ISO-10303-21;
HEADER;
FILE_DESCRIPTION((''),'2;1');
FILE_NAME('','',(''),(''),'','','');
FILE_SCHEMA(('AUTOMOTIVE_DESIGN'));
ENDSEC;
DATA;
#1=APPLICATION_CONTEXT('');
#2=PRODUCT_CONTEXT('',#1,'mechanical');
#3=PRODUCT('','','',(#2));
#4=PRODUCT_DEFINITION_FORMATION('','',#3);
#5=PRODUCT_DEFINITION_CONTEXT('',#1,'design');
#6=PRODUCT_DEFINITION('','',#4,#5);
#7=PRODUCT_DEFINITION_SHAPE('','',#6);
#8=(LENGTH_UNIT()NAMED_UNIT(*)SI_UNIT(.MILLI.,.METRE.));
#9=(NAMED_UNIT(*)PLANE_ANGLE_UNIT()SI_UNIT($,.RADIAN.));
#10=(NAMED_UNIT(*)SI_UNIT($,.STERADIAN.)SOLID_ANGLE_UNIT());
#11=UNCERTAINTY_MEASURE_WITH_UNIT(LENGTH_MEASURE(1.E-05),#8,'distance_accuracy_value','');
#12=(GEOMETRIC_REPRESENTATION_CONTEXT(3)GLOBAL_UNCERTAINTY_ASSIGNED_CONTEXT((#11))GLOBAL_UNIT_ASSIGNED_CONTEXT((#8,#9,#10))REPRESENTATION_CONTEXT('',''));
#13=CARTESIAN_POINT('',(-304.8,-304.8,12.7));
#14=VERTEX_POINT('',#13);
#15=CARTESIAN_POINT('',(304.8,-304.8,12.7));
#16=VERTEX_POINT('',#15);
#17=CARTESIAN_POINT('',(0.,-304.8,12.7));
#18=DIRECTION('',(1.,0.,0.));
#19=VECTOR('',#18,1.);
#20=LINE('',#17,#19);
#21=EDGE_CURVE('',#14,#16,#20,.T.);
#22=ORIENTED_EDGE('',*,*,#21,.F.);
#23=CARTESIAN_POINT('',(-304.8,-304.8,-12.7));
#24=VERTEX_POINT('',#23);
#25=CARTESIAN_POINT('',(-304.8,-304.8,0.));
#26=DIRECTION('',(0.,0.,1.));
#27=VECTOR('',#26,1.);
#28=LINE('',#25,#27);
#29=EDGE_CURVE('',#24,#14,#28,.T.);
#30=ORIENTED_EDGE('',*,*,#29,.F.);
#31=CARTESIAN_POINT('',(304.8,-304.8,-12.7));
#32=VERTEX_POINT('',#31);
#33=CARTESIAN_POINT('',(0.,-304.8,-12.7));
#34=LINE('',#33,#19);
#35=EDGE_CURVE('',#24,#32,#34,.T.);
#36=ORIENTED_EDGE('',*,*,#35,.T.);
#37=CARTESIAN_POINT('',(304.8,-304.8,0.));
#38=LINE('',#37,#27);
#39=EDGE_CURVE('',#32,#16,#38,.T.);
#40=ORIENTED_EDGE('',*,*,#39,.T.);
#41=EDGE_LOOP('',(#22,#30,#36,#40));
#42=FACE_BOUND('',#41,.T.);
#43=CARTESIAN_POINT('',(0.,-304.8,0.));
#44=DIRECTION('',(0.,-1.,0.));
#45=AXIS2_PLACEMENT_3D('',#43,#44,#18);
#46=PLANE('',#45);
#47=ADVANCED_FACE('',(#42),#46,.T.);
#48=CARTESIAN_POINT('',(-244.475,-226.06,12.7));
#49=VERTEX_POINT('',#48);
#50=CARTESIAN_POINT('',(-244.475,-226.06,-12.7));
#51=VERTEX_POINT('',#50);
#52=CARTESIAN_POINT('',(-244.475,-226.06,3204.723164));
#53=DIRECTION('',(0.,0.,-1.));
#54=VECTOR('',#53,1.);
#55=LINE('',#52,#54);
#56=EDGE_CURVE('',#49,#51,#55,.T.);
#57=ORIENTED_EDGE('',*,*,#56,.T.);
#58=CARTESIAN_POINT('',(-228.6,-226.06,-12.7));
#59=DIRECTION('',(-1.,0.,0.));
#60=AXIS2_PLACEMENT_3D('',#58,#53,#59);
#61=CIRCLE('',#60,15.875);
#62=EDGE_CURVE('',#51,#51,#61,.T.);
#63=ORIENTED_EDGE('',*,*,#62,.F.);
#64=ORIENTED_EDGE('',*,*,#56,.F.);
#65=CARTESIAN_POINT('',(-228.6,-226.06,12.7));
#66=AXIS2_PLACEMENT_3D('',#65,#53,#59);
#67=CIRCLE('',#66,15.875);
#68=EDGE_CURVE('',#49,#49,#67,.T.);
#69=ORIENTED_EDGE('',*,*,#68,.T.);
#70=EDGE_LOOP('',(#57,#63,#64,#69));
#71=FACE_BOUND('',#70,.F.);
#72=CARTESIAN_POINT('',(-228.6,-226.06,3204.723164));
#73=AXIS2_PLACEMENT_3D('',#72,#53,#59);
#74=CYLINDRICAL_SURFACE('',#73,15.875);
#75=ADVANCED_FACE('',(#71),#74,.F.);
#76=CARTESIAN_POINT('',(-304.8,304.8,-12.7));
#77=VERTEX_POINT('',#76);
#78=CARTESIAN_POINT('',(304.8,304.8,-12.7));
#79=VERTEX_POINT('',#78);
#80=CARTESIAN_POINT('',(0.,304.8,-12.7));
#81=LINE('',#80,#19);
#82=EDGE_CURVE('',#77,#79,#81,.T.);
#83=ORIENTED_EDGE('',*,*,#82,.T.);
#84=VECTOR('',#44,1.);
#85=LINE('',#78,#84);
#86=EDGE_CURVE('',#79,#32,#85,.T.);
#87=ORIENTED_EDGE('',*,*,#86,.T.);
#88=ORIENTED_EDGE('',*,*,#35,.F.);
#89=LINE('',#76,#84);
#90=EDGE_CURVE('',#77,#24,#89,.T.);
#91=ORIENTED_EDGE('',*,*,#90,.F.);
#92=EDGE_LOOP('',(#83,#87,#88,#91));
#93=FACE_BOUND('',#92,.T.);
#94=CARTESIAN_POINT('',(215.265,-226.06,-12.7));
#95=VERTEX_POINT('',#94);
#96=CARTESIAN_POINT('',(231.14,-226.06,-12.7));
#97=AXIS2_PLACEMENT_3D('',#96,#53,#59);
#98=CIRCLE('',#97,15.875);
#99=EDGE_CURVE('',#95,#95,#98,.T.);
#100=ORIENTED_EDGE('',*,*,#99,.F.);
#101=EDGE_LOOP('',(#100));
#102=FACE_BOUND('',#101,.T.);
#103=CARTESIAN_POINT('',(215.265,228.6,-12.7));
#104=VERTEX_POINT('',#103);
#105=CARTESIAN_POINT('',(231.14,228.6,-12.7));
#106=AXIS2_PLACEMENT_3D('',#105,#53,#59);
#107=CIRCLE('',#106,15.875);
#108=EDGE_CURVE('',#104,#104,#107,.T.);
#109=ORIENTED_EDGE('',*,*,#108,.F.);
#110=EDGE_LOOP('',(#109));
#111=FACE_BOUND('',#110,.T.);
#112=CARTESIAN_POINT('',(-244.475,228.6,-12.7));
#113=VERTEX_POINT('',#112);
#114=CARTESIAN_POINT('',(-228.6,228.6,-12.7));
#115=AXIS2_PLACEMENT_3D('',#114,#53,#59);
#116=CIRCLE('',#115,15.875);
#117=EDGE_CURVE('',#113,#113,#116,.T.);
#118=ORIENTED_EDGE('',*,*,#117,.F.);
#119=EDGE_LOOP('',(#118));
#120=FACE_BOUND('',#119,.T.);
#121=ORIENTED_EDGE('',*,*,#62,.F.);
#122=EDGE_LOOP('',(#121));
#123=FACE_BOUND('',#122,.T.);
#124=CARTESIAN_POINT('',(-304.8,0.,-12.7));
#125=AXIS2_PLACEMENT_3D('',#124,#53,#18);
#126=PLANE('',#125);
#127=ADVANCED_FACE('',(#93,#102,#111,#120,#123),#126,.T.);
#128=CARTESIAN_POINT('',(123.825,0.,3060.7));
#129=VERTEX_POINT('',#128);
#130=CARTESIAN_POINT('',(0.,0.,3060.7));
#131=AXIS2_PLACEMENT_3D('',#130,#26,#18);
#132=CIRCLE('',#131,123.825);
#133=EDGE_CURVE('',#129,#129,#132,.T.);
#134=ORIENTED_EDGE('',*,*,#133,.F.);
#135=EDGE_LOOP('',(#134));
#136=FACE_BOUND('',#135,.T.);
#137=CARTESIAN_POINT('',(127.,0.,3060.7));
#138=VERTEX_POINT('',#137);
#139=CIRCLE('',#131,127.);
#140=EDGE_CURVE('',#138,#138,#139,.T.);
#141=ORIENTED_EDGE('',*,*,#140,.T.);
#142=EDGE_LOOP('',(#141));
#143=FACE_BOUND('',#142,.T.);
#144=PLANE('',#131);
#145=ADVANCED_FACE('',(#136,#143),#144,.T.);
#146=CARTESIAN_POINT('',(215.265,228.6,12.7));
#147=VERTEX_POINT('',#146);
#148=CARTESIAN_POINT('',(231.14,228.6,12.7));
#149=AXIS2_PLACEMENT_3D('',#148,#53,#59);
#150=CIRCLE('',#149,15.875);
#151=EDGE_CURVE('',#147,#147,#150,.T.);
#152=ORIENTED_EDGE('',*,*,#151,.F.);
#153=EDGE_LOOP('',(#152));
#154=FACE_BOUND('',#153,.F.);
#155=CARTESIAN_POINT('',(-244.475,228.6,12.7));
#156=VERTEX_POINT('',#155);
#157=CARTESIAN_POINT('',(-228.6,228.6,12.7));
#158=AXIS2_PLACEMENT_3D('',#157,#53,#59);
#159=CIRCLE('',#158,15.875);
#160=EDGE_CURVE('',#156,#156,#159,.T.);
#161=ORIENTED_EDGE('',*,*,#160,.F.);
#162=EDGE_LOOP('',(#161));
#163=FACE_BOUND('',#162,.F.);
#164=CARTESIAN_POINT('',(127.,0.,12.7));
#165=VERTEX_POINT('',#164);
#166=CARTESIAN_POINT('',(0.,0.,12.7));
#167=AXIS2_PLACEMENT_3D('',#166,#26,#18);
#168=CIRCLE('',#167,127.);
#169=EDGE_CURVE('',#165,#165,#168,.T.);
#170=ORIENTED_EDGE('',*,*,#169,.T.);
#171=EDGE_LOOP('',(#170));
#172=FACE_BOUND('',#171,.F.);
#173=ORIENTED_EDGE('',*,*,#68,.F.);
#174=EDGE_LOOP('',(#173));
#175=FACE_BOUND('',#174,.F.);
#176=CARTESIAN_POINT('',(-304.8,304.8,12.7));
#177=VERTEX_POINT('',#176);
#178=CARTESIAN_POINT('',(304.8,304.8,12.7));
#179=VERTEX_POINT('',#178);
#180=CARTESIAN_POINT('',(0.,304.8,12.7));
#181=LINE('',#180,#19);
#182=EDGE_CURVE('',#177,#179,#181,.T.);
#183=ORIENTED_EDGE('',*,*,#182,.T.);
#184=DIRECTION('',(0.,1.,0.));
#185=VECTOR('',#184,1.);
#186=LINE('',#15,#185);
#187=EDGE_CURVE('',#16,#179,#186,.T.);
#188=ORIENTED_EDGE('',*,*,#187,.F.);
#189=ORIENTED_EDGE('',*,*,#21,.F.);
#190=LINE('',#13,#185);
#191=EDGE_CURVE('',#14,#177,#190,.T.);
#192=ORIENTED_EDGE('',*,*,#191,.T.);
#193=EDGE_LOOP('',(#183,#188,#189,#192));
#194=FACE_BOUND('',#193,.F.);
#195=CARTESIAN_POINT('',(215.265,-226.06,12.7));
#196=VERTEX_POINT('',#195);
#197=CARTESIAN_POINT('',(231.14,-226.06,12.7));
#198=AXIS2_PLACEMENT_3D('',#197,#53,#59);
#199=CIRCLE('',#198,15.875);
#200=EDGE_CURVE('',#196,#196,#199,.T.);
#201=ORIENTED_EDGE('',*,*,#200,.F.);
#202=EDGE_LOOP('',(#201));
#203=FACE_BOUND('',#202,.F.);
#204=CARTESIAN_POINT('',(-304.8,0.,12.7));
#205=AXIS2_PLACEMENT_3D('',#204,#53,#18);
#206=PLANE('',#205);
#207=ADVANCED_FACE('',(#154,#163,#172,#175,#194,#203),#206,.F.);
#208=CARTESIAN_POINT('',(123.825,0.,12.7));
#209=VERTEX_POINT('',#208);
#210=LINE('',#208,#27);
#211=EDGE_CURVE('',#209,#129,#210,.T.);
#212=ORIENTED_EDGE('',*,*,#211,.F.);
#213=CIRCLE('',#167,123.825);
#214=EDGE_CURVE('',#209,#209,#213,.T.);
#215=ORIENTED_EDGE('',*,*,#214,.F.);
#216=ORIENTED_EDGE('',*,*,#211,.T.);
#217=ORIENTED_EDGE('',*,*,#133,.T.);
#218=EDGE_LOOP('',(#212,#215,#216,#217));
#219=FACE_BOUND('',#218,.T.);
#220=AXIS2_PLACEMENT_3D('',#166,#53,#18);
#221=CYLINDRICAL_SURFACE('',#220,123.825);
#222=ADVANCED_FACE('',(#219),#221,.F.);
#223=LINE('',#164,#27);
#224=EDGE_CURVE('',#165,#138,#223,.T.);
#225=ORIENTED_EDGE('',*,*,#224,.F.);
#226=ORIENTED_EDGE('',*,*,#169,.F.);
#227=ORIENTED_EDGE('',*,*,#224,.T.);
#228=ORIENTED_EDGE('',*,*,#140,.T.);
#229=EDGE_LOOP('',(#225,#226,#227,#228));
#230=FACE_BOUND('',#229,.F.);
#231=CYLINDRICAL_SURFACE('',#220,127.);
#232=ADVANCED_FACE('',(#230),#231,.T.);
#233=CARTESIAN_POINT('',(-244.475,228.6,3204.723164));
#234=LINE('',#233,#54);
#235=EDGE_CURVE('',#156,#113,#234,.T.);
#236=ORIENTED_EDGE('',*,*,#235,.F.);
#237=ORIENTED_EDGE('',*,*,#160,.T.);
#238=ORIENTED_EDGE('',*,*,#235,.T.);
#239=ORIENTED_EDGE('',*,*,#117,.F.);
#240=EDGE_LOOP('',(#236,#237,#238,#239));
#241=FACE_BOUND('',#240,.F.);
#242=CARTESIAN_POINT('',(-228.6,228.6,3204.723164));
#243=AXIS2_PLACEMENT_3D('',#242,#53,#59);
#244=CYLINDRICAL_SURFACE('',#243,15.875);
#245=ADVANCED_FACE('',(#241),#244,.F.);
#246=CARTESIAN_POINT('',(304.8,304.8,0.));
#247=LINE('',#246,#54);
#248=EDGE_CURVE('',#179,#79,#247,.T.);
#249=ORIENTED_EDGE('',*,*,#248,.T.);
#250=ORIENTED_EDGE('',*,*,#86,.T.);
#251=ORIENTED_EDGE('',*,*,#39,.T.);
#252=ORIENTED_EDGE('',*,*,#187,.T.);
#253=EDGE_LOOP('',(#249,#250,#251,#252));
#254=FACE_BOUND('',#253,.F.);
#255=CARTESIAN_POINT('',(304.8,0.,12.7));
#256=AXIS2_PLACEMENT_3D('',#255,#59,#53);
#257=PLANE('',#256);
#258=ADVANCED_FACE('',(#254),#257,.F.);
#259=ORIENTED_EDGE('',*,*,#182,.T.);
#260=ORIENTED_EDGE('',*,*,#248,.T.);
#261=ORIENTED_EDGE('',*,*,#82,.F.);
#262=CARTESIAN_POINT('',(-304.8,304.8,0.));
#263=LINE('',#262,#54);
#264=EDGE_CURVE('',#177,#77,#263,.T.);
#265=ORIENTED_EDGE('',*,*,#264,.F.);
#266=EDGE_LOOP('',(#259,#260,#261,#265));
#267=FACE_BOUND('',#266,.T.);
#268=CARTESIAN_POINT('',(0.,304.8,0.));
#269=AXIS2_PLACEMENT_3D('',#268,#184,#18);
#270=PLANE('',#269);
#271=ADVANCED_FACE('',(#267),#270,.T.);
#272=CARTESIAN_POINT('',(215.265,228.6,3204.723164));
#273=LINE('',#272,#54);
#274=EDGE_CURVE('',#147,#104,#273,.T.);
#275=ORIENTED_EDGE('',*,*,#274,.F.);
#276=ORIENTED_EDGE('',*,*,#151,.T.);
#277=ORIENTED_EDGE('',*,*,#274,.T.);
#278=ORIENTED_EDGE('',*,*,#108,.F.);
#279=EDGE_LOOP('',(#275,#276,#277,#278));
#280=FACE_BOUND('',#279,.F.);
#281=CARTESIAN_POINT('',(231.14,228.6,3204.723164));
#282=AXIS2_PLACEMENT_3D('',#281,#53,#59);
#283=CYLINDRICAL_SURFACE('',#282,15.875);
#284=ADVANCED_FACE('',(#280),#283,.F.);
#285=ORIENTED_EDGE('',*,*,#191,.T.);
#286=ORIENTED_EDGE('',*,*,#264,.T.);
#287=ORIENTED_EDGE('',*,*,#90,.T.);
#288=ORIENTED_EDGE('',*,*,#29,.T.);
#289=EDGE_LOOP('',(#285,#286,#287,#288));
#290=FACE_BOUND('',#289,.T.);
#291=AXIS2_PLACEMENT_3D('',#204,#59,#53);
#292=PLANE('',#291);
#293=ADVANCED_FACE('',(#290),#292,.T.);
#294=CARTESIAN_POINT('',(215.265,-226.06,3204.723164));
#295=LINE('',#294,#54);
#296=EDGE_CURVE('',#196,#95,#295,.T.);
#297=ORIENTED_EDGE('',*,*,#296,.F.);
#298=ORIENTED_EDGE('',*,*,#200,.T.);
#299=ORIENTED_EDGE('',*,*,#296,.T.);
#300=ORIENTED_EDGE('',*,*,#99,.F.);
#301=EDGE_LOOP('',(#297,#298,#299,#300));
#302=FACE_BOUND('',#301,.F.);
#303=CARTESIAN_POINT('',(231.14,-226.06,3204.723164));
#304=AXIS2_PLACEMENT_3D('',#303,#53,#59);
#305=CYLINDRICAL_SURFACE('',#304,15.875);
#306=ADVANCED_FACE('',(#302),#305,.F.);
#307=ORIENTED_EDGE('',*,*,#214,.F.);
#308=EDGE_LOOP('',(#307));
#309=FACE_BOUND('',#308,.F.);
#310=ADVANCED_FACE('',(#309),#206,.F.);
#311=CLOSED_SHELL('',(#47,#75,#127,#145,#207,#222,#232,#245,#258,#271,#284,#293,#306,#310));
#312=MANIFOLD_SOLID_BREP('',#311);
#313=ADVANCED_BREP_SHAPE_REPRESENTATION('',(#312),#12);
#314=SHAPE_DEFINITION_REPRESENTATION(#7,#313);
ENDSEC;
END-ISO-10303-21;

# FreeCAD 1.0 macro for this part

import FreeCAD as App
import Part
import Sketcher
Q = App.Units.Quantity


def add_polygon(sketch, points):
    """Adds a closed chain of lines whose ends are joined by coincident constraints."""
    first, n = sketch.GeometryCount, len(points)
    for a, b in zip(points, points[1:] + points[:1]):
        sketch.addGeometry(Part.LineSegment(App.Vector(*a, 0), App.Vector(*b, 0)), False)
    for i in range(n):
        sketch.addConstraint(Sketcher.Constraint("Coincident", first + i, 2, first + (i + 1) % n, 1))

doc = App.newDocument("Part")
params = doc.addObject("Spreadsheet::Sheet", "Params")
for row, (alias, value) in enumerate([
    ("sketch1_width", "24 in"),
    ("sketch1_height", "1 in"),
    ("pad1_length", "12 in"),
    ("sketch2_width", "24 in"),
    ("sketch2_height", "1 in"),
    ("pad2_length", "12 in"),
    ("sketch3_diameter", "10 in"),
    ("sketch3_diameter2", "9.75 in"),
    ("pad3_length", "120 in"),
    ("sketch4_diameter", "1.25 in"),
    ("hole_diameter", "1.25 in"),
], start=1):
    params.set(f"A{row}", alias)
    params.set(f"B{row}", "=" + value)
    params.setAlias(f"B{row}", alias)

body = doc.addObject("PartDesign::Body", "Body")

sketch1 = doc.addObject("Sketcher::SketchObject", "Sketch")
body.addObject(sketch1)
sketch1.AttachmentSupport = (doc.XZ_Plane, [""])
sketch1.MapMode = "FlatFace"
add_polygon(sketch1, [(-305, 13), (-305, -13), (305, -13), (305, 13)])
sketch1.addConstraint(Sketcher.Constraint("Vertical", 0))
sketch1.addConstraint(Sketcher.Constraint("Horizontal", 1))
sketch1.addConstraint(Sketcher.Constraint("Vertical", 2))
sketch1.addConstraint(Sketcher.Constraint("Horizontal", 3))
sketch1.addConstraint(Sketcher.Constraint("Symmetric", 0, 2, 2, 2, -1, 1))
sketch1.addConstraint(Sketcher.Constraint("DistanceX", 1, 1, 1, 2, Q("24 in")))
sketch1.addConstraint(Sketcher.Constraint("DistanceY", 0, 2, 0, 1, Q("1 in")))
sketch1.setExpression("Constraints[9]", "Params.sketch1_width")
sketch1.setExpression("Constraints[10]", "Params.sketch1_height")
pad1 = doc.addObject("PartDesign::Pad", "Pad")
body.addObject(pad1)
pad1.Profile = sketch1
pad1.setExpression("Length", "Params.pad1_length")

sketch2 = doc.addObject("Sketcher::SketchObject", "Sketch001")
body.addObject(sketch2)
sketch2.AttachmentSupport = (doc.XZ_Plane, [""])
sketch2.MapMode = "FlatFace"
add_polygon(sketch2, [(-305, -13), (-305, 13), (305, 13), (305, -13)])
sketch2.addConstraint(Sketcher.Constraint("Vertical", 0))
sketch2.addConstraint(Sketcher.Constraint("Horizontal", 1))
sketch2.addConstraint(Sketcher.Constraint("Vertical", 2))
sketch2.addConstraint(Sketcher.Constraint("Horizontal", 3))
sketch2.addConstraint(Sketcher.Constraint("Symmetric", 0, 2, 2, 2, -1, 1))
sketch2.addConstraint(Sketcher.Constraint("DistanceX", 1, 1, 1, 2, Q("24 in")))
sketch2.addConstraint(Sketcher.Constraint("DistanceY", 0, 1, 0, 2, Q("1 in")))
sketch2.setExpression("Constraints[9]", "Params.sketch2_width")
sketch2.setExpression("Constraints[10]", "Params.sketch2_height")
pad2 = doc.addObject("PartDesign::Pad", "Pad001")
body.addObject(pad2)
pad2.Profile = sketch2
pad2.setExpression("Length", "Params.pad2_length")
pad2.Reversed = True

sketch3 = doc.addObject("Sketcher::SketchObject", "Sketch002")
body.addObject(sketch3)
sketch3.AttachmentSupport = (doc.XY_Plane, [""])
sketch3.MapMode = "FlatFace"
sketch3.AttachmentOffset = App.Placement(App.Vector(0, 0, 0.5 * 25.4), App.Rotation())
sketch3.addGeometry(Part.Circle(App.Vector(0, 0, 0), App.Vector(0, 0, 1), 127), False)
sketch3.addGeometry(Part.Circle(App.Vector(0, 0, 0), App.Vector(0, 0, 1), 124), False)
sketch3.addConstraint(Sketcher.Constraint("Coincident", 0, 3, -1, 1))
sketch3.addConstraint(Sketcher.Constraint("Coincident", 1, 3, -1, 1))
sketch3.addConstraint(Sketcher.Constraint("Diameter", 0, Q("10 in")))
sketch3.addConstraint(Sketcher.Constraint("Diameter", 1, Q("9.75 in")))
sketch3.setExpression("Constraints[2]", "Params.sketch3_diameter")
sketch3.setExpression("Constraints[3]", "Params.sketch3_diameter2")
pad3 = doc.addObject("PartDesign::Pad", "Pad002")
body.addObject(pad3)
pad3.Profile = sketch3
pad3.setExpression("Length", "Params.pad3_length")

sketch4 = doc.addObject("Sketcher::SketchObject", "Sketch003")
body.addObject(sketch4)
sketch4.AttachmentSupport = (doc.XY_Plane, [""])
sketch4.MapMode = "FlatFace"
sketch4.AttachmentOffset = App.Placement(App.Vector(0, 0, 0.5 * 25.4), App.Rotation())
sketch4.addGeometry(Part.Circle(App.Vector(-229, 229, 0), App.Vector(0, 0, 1), 16), False)
sketch4.addGeometry(Part.Circle(App.Vector(-229, -226, 0), App.Vector(0, 0, 1), 16), False)
sketch4.addGeometry(Part.Circle(App.Vector(231, -226, 0), App.Vector(0, 0, 1), 16), False)
sketch4.addGeometry(Part.Circle(App.Vector(231, 229, 0), App.Vector(0, 0, 1), 16), False)
sketch4.addConstraint(Sketcher.Constraint("Equal", 0, 1))
sketch4.addConstraint(Sketcher.Constraint("Equal", 1, 2))
sketch4.addConstraint(Sketcher.Constraint("Equal", 2, 3))
sketch4.addConstraint(Sketcher.Constraint("Horizontal", 1, 3, 2, 3))
sketch4.addConstraint(Sketcher.Constraint("Horizontal", 0, 3, 3, 3))
sketch4.addConstraint(Sketcher.Constraint("Vertical", 0, 3, 1, 3))
sketch4.addConstraint(Sketcher.Constraint("Vertical", 2, 3, 3, 3))
sketch4.addConstraint(Sketcher.Constraint("Diameter", 0, Q("1.25 in")))
sketch4.addConstraint(Sketcher.Constraint("DistanceX", 0, 3, -1, 1, Q("9 in")))
sketch4.addConstraint(Sketcher.Constraint("DistanceY", -1, 1, 0, 3, Q("9 in")))
sketch4.addConstraint(Sketcher.Constraint("DistanceY", 1, 3, -1, 1, Q("8.9 in")))
sketch4.addConstraint(Sketcher.Constraint("DistanceX", -1, 1, 2, 3, Q("9.1 in")))
sketch4.setExpression("Constraints[7]", "Params.sketch4_diameter")
doc.recompute()
hole = doc.addObject("PartDesign::Hole", "Hole")
body.addObject(hole)
hole.Profile = sketch4
hole.ThreadType = "None"
hole.setExpression("Diameter", "Params.hole_diameter")
hole.DepthType = "ThroughAll"

doc.recompute()
